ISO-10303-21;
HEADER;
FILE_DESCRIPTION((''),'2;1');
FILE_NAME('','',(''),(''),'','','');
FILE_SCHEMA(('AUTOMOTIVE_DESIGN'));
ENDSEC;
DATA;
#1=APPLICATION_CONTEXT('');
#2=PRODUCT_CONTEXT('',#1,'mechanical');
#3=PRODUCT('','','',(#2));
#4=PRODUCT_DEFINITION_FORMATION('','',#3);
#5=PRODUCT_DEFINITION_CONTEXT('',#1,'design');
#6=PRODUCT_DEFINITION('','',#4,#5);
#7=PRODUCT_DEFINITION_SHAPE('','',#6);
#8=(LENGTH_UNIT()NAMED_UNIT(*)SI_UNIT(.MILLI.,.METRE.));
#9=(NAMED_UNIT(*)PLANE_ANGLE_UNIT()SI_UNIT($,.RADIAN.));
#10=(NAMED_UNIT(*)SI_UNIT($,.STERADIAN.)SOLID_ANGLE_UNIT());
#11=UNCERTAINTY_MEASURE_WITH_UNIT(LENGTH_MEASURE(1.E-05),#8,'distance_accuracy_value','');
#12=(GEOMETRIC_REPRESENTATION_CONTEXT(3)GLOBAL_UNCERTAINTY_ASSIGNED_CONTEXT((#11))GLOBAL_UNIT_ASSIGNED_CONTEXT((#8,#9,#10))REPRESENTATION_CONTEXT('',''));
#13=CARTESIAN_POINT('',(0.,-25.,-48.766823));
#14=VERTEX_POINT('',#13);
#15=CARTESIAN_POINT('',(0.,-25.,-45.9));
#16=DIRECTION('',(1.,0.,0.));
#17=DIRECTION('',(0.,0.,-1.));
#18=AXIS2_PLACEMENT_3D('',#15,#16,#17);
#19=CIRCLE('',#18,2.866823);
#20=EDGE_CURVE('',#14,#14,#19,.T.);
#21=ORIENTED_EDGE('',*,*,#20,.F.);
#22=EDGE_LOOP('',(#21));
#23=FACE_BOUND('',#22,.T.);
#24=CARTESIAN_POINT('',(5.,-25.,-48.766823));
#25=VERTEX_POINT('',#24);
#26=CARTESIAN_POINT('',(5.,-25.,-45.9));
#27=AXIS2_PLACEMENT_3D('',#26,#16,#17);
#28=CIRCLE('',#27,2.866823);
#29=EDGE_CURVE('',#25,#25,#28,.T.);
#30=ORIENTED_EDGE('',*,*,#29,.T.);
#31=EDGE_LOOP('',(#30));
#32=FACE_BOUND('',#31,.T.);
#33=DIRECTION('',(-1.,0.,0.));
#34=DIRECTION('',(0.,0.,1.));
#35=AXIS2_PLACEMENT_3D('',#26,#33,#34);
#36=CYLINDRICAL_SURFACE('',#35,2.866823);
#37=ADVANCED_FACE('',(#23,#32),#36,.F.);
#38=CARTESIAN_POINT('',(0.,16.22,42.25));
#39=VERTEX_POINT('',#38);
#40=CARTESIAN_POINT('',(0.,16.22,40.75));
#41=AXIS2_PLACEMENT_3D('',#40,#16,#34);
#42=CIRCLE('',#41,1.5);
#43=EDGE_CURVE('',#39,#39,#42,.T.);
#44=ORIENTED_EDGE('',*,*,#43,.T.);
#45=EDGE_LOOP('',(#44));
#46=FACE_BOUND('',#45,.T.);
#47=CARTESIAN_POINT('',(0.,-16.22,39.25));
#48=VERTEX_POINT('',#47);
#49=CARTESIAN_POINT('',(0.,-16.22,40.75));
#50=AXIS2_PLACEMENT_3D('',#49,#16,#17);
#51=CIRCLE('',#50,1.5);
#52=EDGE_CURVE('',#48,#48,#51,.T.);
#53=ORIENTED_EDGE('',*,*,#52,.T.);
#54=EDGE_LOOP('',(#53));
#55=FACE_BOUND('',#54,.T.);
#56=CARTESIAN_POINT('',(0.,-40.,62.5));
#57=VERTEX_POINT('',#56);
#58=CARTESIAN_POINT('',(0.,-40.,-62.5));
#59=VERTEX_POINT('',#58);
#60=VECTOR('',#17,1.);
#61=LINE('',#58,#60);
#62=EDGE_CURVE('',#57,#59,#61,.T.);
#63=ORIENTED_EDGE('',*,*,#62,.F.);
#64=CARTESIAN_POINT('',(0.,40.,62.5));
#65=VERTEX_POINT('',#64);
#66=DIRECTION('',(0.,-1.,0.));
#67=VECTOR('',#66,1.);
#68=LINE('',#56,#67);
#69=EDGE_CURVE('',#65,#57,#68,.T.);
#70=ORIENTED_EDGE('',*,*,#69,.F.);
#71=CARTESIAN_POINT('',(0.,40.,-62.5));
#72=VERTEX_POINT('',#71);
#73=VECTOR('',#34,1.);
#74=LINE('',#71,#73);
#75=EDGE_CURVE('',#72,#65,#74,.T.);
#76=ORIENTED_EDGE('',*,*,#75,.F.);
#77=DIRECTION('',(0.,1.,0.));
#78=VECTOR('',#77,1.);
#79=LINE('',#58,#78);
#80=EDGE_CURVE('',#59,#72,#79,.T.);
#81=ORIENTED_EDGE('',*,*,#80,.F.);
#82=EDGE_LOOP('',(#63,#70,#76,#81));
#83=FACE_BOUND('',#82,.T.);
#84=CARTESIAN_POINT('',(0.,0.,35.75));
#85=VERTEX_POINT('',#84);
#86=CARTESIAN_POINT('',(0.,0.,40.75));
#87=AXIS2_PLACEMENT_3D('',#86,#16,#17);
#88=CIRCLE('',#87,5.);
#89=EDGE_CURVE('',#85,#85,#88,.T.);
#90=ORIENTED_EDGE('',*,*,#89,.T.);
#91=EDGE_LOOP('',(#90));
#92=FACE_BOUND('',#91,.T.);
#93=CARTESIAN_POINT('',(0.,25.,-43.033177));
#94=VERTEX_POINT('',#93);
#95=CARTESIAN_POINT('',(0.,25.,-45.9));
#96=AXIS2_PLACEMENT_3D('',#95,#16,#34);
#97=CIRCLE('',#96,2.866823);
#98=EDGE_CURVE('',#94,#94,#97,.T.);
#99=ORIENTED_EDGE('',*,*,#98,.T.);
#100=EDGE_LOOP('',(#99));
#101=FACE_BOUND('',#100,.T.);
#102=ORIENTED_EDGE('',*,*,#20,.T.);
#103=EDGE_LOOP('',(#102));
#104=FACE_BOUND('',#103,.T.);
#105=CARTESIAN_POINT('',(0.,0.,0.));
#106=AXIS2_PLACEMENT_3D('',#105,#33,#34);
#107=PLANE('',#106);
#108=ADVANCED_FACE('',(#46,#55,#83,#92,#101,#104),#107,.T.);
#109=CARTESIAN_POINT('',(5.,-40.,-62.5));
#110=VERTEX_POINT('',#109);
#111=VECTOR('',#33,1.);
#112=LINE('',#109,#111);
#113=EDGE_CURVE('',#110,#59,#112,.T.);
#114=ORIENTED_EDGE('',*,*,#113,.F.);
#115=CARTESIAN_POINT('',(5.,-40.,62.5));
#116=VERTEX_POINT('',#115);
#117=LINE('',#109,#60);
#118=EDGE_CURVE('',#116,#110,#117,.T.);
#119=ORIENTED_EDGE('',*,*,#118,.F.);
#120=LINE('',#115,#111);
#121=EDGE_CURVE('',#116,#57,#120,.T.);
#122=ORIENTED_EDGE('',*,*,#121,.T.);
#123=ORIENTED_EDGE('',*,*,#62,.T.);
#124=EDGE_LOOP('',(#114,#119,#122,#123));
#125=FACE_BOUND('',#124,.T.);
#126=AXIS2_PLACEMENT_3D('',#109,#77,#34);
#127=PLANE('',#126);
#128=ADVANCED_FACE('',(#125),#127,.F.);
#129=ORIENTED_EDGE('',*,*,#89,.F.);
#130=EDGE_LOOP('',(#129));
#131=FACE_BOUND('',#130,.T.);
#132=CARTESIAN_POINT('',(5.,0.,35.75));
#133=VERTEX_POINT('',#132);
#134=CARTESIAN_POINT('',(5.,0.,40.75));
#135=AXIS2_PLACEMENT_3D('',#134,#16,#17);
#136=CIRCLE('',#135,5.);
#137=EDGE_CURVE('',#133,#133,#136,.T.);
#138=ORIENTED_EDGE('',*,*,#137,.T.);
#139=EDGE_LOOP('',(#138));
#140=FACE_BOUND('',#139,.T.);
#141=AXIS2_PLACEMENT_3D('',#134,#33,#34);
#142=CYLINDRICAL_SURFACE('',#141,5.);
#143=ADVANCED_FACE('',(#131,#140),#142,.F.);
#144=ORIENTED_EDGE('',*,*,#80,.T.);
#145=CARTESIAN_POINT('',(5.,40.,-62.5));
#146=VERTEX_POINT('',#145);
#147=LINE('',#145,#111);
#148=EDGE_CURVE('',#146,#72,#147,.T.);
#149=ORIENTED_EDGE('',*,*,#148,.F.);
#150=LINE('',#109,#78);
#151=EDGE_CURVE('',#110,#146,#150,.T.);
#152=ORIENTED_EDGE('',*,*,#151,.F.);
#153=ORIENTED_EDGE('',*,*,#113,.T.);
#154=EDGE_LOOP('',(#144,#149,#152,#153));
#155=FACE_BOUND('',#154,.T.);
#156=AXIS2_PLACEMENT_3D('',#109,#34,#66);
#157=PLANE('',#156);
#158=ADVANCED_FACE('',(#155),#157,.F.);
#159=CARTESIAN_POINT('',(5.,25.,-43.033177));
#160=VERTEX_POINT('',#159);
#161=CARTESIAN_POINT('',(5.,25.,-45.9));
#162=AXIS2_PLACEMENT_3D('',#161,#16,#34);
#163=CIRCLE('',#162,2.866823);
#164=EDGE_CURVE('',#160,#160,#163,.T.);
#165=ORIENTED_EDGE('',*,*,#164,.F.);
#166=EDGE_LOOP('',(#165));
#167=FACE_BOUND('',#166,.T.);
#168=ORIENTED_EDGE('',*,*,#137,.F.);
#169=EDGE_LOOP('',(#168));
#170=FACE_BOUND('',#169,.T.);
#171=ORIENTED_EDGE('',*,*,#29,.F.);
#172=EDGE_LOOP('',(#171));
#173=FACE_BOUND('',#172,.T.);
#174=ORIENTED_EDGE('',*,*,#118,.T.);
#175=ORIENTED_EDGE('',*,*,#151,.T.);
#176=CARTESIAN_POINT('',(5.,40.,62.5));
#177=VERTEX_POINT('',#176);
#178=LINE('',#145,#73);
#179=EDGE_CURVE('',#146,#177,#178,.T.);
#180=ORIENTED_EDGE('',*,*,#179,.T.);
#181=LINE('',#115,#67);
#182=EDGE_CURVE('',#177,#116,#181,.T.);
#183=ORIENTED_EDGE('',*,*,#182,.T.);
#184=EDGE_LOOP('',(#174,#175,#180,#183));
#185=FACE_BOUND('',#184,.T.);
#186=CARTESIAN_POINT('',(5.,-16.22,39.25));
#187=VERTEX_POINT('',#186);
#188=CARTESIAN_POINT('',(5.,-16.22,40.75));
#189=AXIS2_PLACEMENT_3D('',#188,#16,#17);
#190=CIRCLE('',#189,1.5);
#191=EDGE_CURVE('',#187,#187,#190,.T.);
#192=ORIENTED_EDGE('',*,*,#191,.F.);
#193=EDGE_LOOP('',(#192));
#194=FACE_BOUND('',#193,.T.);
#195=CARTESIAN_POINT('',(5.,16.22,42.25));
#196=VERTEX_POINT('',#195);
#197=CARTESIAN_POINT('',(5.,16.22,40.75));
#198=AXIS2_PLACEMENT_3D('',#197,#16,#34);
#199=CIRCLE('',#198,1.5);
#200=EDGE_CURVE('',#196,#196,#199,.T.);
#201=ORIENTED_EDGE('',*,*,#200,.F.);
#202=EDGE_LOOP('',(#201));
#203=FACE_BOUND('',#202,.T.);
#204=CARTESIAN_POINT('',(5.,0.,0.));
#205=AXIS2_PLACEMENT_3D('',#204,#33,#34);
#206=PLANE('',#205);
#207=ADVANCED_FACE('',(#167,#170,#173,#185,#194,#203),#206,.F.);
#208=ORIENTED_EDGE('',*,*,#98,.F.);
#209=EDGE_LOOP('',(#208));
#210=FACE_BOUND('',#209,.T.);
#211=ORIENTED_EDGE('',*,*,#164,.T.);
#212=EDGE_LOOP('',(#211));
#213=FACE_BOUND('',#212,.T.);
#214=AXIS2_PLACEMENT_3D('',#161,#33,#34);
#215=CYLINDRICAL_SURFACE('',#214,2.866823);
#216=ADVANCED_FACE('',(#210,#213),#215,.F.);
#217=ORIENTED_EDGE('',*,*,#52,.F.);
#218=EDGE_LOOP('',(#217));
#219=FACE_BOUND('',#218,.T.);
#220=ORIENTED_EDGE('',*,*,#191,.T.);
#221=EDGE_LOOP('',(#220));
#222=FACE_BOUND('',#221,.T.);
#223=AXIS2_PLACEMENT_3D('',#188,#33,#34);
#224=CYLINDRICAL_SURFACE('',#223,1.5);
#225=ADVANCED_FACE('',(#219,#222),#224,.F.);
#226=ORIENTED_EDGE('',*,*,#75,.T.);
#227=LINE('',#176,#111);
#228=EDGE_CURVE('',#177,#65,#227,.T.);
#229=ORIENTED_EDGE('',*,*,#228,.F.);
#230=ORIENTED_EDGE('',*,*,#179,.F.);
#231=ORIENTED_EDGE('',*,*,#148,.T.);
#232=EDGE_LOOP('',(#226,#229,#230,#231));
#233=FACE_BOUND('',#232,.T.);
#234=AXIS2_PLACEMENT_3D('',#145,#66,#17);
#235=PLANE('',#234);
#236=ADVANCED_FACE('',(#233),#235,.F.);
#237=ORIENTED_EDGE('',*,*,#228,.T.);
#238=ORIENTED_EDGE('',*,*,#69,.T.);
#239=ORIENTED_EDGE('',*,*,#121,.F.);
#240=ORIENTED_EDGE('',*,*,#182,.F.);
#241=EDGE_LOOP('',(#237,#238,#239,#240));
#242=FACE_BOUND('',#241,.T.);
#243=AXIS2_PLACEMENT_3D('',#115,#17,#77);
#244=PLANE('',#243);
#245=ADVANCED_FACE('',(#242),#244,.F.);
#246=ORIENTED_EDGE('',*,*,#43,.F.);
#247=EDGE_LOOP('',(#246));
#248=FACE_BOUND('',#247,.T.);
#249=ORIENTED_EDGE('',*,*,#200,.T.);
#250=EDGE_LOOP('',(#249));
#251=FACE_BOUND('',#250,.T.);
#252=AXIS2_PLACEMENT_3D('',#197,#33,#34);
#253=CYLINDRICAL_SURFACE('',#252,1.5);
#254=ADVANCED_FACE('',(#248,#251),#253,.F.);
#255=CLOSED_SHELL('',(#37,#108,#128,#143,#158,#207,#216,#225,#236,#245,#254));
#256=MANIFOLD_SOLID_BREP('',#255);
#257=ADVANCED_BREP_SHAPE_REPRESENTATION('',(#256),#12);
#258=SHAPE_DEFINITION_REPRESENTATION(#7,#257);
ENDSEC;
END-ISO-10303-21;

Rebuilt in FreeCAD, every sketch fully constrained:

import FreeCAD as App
import Part
import Sketcher
from FreeCAD import Vector

doc = App.newDocument("Part")
body = doc.addObject("PartDesign::Body", "Body")

# Sketch on YZ plane
sketch1 = body.newObject("Sketcher::SketchObject", "Sketch")
sketch1.AttachmentSupport = (doc.getObject("YZ_Plane"), [""])
sketch1.MapMode = "FlatFace"
sketch1.addGeometry(Part.LineSegment(Vector(-40, 62.5, 0), Vector(-40, -62.5, 0)), False)
sketch1.addGeometry(Part.LineSegment(Vector(-40, -62.5, 0), Vector(40, -62.5, 0)), False)
sketch1.addGeometry(Part.LineSegment(Vector(40, -62.5, 0), Vector(40, 62.5, 0)), False)
sketch1.addGeometry(Part.LineSegment(Vector(40, 62.5, 0), Vector(-40, 62.5, 0)), False)
sketch1.addGeometry(Part.Circle(Vector(-25, -45.9, 0), Vector(0, 0, 1), 2.866823), False)
sketch1.addGeometry(Part.Circle(Vector(25, -45.9, 0), Vector(0, 0, 1), 2.866823), False)
sketch1.addGeometry(Part.Circle(Vector(-16.22, 40.75, 0), Vector(0, 0, 1), 1.5), False)
sketch1.addGeometry(Part.Circle(Vector(0, 40.75, 0), Vector(0, 0, 1), 5), False)
sketch1.addGeometry(Part.Circle(Vector(16.22, 40.75, 0), Vector(0, 0, 1), 1.5), False)
sketch1.addConstraint(Sketcher.Constraint("Coincident", 0, 2, 1, 1))
sketch1.addConstraint(Sketcher.Constraint("Coincident", 1, 2, 2, 1))
sketch1.addConstraint(Sketcher.Constraint("Coincident", 2, 2, 3, 1))
sketch1.addConstraint(Sketcher.Constraint("Coincident", 3, 2, 0, 1))
sketch1.addConstraint(Sketcher.Constraint("Vertical", 0))
sketch1.addConstraint(Sketcher.Constraint("Horizontal", 1))
sketch1.addConstraint(Sketcher.Constraint("Vertical", 2))
sketch1.addConstraint(Sketcher.Constraint("Horizontal", 3))
sketch1.addConstraint(Sketcher.Constraint("Equal", 4, 5))
sketch1.addConstraint(Sketcher.Constraint("Equal", 6, 8))
sketch1.addConstraint(Sketcher.Constraint("Symmetric", 0, 2, 2, 2, -1, 1))
sketch1.addConstraint(Sketcher.Constraint("Symmetric", 4, 3, 5, 3, -2))
sketch1.addConstraint(Sketcher.Constraint("Symmetric", 6, 3, 8, 3, -2))
sketch1.addConstraint(Sketcher.Constraint("PointOnObject", 7, 3, -2))
sketch1.addConstraint(Sketcher.Constraint("Horizontal", 6, 3, 7, 3))
sketch1.addConstraint(Sketcher.Constraint("Diameter", 6, 3.0))
sketch1.addConstraint(Sketcher.Constraint("Diameter", 7, 10.0))
sketch1.addConstraint(Sketcher.Constraint("DistanceX", 1, 1, 1, 2, 80.0))
sketch1.addConstraint(Sketcher.Constraint("DistanceY", 0, 2, 0, 1, 125.0))
sketch1.addConstraint(Sketcher.Constraint("DistanceX", 4, 3, -1, 1, 25.0))
sketch1.addConstraint(Sketcher.Constraint("DistanceY", 4, 3, -1, 1, 45.9))
sketch1.addConstraint(Sketcher.Constraint("DistanceX", 6, 3, -1, 1, 16.22))
sketch1.addConstraint(Sketcher.Constraint("DistanceY", -1, 1, 6, 3, 40.75))
sketch1.addConstraint(Sketcher.Constraint("Diameter", 4, 5.733645))
pad1 = body.newObject("PartDesign::Pad", "Pad")
pad1.Profile = sketch1
pad1.Length = 5

doc.recompute()
